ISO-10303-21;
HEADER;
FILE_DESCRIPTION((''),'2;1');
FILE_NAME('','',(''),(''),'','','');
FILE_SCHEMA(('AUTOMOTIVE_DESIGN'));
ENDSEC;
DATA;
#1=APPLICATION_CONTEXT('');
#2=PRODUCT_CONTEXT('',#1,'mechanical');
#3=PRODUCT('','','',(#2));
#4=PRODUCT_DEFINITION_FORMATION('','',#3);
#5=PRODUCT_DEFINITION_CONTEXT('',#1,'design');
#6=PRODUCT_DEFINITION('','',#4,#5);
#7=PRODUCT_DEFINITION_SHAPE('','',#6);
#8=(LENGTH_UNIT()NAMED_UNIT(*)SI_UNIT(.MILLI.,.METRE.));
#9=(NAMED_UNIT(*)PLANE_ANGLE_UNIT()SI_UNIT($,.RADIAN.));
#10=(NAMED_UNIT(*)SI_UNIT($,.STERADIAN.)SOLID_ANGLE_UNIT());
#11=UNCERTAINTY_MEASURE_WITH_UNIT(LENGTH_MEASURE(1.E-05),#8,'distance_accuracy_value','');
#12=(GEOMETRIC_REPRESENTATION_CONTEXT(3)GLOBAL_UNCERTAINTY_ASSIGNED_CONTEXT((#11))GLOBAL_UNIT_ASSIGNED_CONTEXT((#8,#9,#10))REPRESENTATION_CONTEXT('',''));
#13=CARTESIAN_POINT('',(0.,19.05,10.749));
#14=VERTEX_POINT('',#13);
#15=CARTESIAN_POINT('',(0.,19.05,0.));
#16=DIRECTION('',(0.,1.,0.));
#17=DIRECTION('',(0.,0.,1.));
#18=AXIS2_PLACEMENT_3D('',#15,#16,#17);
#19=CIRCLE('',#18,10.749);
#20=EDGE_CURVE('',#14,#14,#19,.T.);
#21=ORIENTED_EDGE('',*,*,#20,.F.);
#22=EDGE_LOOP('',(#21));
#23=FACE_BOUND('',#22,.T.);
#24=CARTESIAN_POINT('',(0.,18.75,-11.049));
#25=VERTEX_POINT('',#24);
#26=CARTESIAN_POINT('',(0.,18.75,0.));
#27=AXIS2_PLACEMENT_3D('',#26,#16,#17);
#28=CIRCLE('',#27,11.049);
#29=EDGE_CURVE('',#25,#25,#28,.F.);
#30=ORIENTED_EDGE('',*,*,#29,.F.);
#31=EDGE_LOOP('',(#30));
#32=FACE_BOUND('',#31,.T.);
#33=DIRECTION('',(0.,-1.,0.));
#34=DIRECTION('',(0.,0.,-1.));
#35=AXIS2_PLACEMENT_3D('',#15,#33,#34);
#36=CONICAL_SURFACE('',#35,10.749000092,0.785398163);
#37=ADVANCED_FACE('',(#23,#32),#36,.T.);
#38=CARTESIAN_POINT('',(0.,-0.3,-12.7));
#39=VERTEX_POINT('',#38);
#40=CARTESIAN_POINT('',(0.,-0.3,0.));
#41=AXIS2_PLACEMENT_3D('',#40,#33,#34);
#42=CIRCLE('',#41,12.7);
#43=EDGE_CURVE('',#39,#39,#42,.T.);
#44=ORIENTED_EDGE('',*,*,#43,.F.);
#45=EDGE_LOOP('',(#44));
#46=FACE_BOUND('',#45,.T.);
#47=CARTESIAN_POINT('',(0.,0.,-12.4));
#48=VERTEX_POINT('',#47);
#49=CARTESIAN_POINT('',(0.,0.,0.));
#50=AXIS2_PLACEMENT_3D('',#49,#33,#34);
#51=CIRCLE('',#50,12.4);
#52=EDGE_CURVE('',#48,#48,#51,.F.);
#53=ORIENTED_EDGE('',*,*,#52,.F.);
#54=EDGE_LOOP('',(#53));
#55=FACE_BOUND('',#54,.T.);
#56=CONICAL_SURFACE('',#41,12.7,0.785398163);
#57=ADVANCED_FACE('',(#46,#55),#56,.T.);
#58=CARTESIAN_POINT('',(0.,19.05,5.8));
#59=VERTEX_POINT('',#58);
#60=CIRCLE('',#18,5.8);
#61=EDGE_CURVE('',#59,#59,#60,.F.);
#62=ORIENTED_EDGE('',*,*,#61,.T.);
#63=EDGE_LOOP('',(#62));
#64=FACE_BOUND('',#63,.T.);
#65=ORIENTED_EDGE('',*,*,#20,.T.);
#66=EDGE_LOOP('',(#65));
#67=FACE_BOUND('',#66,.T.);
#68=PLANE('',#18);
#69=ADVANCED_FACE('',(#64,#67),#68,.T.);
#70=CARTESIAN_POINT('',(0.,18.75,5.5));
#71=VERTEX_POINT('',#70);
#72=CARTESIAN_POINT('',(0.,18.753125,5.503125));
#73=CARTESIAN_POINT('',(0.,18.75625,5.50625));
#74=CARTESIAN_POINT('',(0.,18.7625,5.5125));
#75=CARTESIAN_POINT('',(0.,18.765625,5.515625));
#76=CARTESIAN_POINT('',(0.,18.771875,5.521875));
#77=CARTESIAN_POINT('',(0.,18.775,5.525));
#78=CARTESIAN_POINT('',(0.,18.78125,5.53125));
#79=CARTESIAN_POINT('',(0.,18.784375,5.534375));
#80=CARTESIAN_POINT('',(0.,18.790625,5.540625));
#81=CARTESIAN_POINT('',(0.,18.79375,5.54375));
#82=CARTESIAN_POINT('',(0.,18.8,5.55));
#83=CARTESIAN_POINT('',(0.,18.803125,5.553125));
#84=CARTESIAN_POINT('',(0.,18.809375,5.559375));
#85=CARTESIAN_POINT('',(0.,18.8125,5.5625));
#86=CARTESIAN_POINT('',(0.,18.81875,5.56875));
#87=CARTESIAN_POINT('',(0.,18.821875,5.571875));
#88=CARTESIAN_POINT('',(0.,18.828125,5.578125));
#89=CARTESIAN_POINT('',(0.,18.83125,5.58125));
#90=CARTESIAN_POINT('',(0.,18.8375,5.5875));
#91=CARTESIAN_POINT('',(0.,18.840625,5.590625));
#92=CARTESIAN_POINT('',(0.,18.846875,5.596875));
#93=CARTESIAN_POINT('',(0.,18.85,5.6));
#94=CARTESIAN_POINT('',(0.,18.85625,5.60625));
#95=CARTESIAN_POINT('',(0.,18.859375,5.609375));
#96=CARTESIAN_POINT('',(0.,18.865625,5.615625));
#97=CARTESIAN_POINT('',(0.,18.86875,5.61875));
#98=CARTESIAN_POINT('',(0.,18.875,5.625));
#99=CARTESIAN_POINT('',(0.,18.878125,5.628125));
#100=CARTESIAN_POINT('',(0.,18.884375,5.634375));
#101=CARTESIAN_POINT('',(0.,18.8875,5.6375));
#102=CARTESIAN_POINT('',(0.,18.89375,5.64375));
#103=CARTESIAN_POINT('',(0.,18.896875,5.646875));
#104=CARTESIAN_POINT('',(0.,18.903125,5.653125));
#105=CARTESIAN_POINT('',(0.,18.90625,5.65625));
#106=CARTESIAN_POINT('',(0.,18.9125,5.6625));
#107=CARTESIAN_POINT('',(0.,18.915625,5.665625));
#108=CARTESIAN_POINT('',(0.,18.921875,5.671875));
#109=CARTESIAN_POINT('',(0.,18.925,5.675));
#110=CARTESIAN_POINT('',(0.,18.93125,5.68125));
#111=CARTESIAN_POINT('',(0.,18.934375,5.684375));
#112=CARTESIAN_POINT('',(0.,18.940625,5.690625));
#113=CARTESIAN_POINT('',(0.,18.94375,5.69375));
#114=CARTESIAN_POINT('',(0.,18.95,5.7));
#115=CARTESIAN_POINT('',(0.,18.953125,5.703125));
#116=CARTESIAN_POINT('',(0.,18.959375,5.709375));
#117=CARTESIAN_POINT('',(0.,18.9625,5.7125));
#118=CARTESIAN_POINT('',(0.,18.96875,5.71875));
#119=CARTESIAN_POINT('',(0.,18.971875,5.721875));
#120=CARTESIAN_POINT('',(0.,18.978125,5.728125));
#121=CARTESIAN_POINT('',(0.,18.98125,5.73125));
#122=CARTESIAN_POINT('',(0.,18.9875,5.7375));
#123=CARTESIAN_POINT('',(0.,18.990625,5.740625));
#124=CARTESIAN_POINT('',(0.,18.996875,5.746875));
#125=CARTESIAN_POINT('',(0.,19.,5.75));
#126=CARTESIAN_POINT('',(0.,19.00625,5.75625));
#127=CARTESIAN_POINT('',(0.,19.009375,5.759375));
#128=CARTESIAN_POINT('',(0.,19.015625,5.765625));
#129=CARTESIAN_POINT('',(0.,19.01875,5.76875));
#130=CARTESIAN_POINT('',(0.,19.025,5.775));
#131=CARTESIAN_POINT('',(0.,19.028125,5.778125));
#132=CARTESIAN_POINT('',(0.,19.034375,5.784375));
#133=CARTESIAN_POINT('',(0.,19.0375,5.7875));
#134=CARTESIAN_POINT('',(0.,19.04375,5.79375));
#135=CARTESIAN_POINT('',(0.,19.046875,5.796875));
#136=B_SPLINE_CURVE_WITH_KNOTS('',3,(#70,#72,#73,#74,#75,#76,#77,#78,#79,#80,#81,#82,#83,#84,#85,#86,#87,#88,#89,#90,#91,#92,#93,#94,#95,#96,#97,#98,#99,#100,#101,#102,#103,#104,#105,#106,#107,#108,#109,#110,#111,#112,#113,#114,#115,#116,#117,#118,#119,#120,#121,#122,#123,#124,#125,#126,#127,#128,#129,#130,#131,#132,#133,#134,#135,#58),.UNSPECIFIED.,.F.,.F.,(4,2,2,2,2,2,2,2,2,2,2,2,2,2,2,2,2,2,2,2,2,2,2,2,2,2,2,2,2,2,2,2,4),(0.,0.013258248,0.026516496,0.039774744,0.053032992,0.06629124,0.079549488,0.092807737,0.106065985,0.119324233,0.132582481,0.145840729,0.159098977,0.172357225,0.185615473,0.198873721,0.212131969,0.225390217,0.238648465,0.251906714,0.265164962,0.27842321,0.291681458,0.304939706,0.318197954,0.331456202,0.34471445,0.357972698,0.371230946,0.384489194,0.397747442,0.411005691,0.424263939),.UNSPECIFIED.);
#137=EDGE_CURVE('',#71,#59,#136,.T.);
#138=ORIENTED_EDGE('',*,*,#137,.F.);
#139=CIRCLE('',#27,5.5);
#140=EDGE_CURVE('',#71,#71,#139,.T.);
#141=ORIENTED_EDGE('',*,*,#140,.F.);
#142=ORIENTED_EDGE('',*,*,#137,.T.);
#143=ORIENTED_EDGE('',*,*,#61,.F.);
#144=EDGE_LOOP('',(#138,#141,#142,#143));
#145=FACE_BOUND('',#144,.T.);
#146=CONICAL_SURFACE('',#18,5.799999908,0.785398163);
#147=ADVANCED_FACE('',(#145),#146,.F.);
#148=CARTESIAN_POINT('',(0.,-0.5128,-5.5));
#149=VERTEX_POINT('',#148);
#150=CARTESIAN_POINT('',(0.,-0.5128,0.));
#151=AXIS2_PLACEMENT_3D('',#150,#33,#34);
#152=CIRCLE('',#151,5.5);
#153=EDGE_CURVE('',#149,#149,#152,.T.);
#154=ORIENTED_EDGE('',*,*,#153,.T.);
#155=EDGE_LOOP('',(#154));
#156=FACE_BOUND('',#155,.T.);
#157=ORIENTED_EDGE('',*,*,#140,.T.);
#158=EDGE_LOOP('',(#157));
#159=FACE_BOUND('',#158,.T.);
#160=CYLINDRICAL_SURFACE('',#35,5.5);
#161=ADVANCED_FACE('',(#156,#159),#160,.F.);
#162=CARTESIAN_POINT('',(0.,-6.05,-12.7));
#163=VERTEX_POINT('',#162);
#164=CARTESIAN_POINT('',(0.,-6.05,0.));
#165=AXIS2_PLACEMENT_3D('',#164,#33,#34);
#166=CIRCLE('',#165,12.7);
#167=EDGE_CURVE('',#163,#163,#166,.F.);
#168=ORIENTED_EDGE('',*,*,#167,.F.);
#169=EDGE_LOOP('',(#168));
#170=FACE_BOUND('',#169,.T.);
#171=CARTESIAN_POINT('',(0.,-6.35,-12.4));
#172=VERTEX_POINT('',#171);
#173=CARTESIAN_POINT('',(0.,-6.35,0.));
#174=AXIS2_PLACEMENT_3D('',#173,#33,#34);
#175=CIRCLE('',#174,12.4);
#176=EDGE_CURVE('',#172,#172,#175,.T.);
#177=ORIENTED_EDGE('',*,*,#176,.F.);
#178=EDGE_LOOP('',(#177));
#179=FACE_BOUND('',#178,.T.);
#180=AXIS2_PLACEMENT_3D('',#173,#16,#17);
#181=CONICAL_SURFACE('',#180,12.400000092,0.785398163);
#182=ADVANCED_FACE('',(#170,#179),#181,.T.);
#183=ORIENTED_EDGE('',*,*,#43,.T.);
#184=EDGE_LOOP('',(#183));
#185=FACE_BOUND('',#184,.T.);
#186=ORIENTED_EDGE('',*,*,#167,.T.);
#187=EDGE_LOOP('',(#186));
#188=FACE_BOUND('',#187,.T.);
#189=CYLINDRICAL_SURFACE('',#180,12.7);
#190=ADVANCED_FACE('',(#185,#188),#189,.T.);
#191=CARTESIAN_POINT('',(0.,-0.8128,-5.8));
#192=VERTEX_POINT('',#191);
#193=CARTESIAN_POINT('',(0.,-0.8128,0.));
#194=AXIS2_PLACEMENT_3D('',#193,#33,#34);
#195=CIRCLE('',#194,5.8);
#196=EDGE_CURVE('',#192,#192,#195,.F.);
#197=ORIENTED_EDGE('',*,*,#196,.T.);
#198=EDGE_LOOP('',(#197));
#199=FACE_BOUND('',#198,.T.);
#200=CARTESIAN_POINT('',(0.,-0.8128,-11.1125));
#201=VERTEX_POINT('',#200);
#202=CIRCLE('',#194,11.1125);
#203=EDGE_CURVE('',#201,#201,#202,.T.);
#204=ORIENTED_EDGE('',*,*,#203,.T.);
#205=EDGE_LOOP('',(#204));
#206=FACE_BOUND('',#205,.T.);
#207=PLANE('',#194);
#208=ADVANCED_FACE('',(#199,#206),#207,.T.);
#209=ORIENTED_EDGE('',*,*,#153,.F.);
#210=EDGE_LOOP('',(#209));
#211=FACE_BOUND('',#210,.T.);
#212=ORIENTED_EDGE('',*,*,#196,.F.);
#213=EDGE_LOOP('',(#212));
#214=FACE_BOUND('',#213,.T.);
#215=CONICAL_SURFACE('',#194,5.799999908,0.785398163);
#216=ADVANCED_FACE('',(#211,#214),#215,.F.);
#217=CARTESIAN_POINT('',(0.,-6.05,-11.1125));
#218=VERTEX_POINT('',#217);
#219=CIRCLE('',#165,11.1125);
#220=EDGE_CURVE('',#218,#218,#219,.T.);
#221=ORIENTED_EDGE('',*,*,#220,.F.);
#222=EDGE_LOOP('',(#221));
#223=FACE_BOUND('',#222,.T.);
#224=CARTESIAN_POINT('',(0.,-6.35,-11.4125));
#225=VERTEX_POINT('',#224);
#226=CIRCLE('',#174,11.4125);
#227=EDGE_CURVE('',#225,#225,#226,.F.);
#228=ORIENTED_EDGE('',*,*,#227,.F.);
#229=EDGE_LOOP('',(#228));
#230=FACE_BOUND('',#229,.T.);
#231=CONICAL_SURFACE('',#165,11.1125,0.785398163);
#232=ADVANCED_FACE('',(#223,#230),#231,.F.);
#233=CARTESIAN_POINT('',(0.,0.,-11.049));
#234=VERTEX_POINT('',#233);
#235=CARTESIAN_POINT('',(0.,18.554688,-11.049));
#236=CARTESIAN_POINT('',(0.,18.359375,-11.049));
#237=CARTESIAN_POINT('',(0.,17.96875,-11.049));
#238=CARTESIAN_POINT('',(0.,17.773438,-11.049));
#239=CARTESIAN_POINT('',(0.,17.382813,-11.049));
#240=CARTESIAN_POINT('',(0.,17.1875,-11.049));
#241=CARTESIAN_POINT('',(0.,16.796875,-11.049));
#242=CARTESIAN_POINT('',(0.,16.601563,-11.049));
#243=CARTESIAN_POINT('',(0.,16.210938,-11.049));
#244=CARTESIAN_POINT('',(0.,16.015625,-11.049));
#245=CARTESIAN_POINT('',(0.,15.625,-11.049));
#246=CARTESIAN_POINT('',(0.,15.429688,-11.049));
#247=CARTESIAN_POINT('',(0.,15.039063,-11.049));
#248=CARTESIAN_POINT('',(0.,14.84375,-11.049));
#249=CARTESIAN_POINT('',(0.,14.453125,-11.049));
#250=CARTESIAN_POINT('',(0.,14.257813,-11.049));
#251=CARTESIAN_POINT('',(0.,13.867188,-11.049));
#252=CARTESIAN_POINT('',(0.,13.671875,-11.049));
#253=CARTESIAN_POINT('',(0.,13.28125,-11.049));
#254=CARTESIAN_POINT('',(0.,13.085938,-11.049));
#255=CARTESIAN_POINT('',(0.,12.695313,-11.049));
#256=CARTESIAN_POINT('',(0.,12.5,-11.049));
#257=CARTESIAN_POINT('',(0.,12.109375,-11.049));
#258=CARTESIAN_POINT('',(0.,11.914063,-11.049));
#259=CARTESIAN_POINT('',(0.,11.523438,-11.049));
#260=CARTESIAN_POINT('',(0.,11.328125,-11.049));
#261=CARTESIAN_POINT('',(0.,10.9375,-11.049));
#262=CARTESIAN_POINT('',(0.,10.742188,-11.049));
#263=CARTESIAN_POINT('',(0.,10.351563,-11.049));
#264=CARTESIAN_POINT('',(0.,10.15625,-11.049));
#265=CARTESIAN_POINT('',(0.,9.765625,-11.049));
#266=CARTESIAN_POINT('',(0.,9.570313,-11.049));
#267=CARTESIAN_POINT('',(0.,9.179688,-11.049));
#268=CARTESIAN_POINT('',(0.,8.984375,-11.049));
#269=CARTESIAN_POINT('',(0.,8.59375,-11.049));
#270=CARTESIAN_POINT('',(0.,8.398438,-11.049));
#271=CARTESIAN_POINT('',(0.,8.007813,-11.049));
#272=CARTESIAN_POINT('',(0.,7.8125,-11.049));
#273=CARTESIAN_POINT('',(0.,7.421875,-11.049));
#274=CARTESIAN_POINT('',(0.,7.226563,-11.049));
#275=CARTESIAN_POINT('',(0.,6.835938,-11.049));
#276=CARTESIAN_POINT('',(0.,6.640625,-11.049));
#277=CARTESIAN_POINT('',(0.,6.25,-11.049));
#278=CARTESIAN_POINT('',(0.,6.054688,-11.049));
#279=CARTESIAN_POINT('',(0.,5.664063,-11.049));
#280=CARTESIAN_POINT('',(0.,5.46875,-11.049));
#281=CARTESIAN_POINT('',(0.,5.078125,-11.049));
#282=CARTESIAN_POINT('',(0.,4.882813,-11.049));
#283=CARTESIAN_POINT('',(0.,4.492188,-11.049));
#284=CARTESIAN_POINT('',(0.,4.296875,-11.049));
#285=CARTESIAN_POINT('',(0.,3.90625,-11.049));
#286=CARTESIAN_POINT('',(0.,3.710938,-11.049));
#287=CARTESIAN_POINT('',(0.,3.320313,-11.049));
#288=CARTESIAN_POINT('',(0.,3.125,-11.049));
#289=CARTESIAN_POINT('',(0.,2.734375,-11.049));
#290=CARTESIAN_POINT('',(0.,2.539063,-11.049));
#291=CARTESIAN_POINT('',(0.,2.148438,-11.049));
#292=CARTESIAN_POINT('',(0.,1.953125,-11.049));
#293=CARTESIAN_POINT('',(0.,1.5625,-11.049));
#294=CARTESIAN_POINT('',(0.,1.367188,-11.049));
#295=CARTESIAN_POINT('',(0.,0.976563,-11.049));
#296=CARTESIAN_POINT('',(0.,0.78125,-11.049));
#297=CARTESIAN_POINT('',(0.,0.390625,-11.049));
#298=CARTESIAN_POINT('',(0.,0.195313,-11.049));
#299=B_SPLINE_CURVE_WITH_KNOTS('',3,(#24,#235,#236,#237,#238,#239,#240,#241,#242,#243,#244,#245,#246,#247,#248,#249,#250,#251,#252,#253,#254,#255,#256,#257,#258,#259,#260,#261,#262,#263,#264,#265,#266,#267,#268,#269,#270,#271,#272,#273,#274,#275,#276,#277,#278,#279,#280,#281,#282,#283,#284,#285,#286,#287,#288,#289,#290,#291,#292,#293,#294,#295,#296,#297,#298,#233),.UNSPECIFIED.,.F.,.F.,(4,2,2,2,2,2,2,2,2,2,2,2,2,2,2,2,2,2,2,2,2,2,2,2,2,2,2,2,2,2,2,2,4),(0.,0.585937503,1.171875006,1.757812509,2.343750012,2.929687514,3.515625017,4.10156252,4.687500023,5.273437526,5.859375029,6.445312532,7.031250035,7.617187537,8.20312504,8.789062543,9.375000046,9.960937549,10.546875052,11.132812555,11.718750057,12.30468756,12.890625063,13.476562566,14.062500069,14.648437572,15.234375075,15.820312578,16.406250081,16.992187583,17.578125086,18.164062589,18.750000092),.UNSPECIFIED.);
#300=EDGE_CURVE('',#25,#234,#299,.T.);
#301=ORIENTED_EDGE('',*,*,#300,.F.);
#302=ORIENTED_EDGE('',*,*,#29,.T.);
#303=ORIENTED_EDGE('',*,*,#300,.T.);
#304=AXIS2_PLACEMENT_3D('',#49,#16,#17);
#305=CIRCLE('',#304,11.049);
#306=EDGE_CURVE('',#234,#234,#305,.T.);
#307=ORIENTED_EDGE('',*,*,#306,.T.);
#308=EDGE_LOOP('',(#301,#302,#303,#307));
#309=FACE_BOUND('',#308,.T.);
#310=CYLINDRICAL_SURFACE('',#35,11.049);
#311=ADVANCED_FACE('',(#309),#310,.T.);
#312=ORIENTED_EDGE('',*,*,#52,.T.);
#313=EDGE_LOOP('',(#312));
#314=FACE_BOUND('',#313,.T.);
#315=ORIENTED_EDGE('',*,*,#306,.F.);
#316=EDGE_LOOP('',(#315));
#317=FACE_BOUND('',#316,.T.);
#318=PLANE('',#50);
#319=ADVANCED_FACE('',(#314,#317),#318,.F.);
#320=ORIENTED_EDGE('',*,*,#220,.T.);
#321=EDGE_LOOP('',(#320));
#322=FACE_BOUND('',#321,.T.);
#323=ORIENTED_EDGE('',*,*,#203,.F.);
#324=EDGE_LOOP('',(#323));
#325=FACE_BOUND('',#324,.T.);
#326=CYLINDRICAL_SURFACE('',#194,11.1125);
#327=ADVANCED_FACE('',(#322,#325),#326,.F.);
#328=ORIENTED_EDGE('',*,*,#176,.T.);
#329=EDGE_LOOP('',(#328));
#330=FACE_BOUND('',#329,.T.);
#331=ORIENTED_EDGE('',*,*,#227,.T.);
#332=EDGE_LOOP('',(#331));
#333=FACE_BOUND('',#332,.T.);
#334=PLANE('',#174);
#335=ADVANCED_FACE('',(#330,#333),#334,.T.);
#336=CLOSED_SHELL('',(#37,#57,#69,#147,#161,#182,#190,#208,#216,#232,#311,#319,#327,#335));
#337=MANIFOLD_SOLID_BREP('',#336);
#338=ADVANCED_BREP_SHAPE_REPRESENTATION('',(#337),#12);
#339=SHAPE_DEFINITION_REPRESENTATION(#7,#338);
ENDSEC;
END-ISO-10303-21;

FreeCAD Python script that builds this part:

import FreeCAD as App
import Part
import Sketcher
from FreeCAD import Vector
Q = App.Units.Quantity


def edges_at(feature, points):
    """Names of the edges that pass closest to the given points."""
    edges = feature.Shape.Edges
    near = lambda p: min(range(len(edges)), key=lambda i: edges[i].distToShape(Part.Vertex(*p))[0])
    return sorted({f"Edge{near(p) + 1}" for p in points})

doc = App.newDocument("Part")
params = doc.addObject("Spreadsheet::Sheet", "Params")
for row, (alias, value) in enumerate([
    ("sketch1_diameter", "0.87 in"),
    ("pad1_length", "0.75 in"),
    ("sketch2_diameter", "1 in"),
    ("pad2_length", "0.25 in"),
    ("sketch4_diameter", "0.875 in"),
    ("pocket2_length", "0.218 in"),
    ("chamfer_size", "0.3 mm"),
], start=1):
    params.set(f"A{row}", alias)
    params.set(f"B{row}", "=" + value)
    params.setAlias(f"B{row}", alias)

body = doc.addObject("PartDesign::Body", "Body")

# Sketch on XZ plane
sketch1 = body.newObject("Sketcher::SketchObject", "Sketch")
sketch1.AttachmentSupport = (doc.getObject("XZ_Plane"), [""])
sketch1.MapMode = "FlatFace"
sketch1.addGeometry(Part.Circle(Vector(0, 0, 0), Vector(0, 0, 1), 11), False)
sketch1.addConstraint([
    Sketcher.Constraint("Coincident", 0, 3, -1, 1),
    Sketcher.Constraint("Diameter", 0, Q("0.87 in")),
])
sketch1.setExpression("Constraints[1]", "Params.sketch1_diameter")
pad1 = body.newObject("PartDesign::Pad", "Pad")
pad1.Profile = sketch1
pad1.setExpression("Length", "Params.pad1_length")
pad1.Reversed = True

# Sketch on XZ plane
sketch2 = body.newObject("Sketcher::SketchObject", "Sketch001")
sketch2.AttachmentSupport = (doc.getObject("XZ_Plane"), [""])
sketch2.MapMode = "FlatFace"
sketch2.addGeometry(Part.Circle(Vector(0, 0, 0), Vector(0, 0, 1), 13), False)
sketch2.addConstraint([
    Sketcher.Constraint("Coincident", 0, 3, -1, 1),
    Sketcher.Constraint("Diameter", 0, Q("1 in")),
])
sketch2.setExpression("Constraints[1]", "Params.sketch2_diameter")
pad2 = body.newObject("PartDesign::Pad", "Pad001")
pad2.Profile = sketch2
pad2.setExpression("Length", "Params.pad2_length")

# Sketch on XZ plane
sketch3 = body.newObject("Sketcher::SketchObject", "Sketch002")
sketch3.AttachmentSupport = (doc.getObject("XZ_Plane"), [""])
sketch3.MapMode = "FlatFace"
sketch3.AttachmentOffset = App.Placement(Vector(0, 0, 0.25 * 25.4), App.Rotation())
sketch3.addGeometry(Part.Circle(Vector(0, 0, 0), Vector(0, 0, 1), 6), False)
sketch3.addConstraint([
    Sketcher.Constraint("Coincident", 0, 3, -1, 1),
    Sketcher.Constraint("Diameter", 0, Q("11 mm")),
])
pocket1 = body.newObject("PartDesign::Pocket", "Pocket")
pocket1.Profile = sketch3
pocket1.Type = "ThroughAll"

# Sketch on XZ plane
sketch4 = body.newObject("Sketcher::SketchObject", "Sketch003")
sketch4.AttachmentSupport = (doc.getObject("XZ_Plane"), [""])
sketch4.MapMode = "FlatFace"
sketch4.AttachmentOffset = App.Placement(Vector(0, 0, 0.25 * 25.4), App.Rotation())
sketch4.addGeometry(Part.Circle(Vector(0, 0, 0), Vector(0, 0, 1), 11), False)
sketch4.addConstraint([
    Sketcher.Constraint("Coincident", 0, 3, -1, 1),
    Sketcher.Constraint("Diameter", 0, Q("0.875 in")),
])
sketch4.setExpression("Constraints[1]", "Params.sketch4_diameter")
pocket2 = body.newObject("PartDesign::Pocket", "Pocket001")
pocket2.Profile = sketch4
pocket2.setExpression("Length", "Params.pocket2_length")
doc.recompute()

chamfer = body.newObject("PartDesign::Chamfer", "Chamfer")
chamfer.Base = (pocket2, edges_at(pocket2, [
    (0, 19.05, 5.5),
    (0, -6.35, 11.113),
    (0, -0.813, 5.5),
    (0, 19.05, 11.049),
    (0, 0, 12.7),
    (0, -6.35, 12.7),
]))
chamfer.setExpression("Size", "Params.chamfer_size")

doc.recompute()
